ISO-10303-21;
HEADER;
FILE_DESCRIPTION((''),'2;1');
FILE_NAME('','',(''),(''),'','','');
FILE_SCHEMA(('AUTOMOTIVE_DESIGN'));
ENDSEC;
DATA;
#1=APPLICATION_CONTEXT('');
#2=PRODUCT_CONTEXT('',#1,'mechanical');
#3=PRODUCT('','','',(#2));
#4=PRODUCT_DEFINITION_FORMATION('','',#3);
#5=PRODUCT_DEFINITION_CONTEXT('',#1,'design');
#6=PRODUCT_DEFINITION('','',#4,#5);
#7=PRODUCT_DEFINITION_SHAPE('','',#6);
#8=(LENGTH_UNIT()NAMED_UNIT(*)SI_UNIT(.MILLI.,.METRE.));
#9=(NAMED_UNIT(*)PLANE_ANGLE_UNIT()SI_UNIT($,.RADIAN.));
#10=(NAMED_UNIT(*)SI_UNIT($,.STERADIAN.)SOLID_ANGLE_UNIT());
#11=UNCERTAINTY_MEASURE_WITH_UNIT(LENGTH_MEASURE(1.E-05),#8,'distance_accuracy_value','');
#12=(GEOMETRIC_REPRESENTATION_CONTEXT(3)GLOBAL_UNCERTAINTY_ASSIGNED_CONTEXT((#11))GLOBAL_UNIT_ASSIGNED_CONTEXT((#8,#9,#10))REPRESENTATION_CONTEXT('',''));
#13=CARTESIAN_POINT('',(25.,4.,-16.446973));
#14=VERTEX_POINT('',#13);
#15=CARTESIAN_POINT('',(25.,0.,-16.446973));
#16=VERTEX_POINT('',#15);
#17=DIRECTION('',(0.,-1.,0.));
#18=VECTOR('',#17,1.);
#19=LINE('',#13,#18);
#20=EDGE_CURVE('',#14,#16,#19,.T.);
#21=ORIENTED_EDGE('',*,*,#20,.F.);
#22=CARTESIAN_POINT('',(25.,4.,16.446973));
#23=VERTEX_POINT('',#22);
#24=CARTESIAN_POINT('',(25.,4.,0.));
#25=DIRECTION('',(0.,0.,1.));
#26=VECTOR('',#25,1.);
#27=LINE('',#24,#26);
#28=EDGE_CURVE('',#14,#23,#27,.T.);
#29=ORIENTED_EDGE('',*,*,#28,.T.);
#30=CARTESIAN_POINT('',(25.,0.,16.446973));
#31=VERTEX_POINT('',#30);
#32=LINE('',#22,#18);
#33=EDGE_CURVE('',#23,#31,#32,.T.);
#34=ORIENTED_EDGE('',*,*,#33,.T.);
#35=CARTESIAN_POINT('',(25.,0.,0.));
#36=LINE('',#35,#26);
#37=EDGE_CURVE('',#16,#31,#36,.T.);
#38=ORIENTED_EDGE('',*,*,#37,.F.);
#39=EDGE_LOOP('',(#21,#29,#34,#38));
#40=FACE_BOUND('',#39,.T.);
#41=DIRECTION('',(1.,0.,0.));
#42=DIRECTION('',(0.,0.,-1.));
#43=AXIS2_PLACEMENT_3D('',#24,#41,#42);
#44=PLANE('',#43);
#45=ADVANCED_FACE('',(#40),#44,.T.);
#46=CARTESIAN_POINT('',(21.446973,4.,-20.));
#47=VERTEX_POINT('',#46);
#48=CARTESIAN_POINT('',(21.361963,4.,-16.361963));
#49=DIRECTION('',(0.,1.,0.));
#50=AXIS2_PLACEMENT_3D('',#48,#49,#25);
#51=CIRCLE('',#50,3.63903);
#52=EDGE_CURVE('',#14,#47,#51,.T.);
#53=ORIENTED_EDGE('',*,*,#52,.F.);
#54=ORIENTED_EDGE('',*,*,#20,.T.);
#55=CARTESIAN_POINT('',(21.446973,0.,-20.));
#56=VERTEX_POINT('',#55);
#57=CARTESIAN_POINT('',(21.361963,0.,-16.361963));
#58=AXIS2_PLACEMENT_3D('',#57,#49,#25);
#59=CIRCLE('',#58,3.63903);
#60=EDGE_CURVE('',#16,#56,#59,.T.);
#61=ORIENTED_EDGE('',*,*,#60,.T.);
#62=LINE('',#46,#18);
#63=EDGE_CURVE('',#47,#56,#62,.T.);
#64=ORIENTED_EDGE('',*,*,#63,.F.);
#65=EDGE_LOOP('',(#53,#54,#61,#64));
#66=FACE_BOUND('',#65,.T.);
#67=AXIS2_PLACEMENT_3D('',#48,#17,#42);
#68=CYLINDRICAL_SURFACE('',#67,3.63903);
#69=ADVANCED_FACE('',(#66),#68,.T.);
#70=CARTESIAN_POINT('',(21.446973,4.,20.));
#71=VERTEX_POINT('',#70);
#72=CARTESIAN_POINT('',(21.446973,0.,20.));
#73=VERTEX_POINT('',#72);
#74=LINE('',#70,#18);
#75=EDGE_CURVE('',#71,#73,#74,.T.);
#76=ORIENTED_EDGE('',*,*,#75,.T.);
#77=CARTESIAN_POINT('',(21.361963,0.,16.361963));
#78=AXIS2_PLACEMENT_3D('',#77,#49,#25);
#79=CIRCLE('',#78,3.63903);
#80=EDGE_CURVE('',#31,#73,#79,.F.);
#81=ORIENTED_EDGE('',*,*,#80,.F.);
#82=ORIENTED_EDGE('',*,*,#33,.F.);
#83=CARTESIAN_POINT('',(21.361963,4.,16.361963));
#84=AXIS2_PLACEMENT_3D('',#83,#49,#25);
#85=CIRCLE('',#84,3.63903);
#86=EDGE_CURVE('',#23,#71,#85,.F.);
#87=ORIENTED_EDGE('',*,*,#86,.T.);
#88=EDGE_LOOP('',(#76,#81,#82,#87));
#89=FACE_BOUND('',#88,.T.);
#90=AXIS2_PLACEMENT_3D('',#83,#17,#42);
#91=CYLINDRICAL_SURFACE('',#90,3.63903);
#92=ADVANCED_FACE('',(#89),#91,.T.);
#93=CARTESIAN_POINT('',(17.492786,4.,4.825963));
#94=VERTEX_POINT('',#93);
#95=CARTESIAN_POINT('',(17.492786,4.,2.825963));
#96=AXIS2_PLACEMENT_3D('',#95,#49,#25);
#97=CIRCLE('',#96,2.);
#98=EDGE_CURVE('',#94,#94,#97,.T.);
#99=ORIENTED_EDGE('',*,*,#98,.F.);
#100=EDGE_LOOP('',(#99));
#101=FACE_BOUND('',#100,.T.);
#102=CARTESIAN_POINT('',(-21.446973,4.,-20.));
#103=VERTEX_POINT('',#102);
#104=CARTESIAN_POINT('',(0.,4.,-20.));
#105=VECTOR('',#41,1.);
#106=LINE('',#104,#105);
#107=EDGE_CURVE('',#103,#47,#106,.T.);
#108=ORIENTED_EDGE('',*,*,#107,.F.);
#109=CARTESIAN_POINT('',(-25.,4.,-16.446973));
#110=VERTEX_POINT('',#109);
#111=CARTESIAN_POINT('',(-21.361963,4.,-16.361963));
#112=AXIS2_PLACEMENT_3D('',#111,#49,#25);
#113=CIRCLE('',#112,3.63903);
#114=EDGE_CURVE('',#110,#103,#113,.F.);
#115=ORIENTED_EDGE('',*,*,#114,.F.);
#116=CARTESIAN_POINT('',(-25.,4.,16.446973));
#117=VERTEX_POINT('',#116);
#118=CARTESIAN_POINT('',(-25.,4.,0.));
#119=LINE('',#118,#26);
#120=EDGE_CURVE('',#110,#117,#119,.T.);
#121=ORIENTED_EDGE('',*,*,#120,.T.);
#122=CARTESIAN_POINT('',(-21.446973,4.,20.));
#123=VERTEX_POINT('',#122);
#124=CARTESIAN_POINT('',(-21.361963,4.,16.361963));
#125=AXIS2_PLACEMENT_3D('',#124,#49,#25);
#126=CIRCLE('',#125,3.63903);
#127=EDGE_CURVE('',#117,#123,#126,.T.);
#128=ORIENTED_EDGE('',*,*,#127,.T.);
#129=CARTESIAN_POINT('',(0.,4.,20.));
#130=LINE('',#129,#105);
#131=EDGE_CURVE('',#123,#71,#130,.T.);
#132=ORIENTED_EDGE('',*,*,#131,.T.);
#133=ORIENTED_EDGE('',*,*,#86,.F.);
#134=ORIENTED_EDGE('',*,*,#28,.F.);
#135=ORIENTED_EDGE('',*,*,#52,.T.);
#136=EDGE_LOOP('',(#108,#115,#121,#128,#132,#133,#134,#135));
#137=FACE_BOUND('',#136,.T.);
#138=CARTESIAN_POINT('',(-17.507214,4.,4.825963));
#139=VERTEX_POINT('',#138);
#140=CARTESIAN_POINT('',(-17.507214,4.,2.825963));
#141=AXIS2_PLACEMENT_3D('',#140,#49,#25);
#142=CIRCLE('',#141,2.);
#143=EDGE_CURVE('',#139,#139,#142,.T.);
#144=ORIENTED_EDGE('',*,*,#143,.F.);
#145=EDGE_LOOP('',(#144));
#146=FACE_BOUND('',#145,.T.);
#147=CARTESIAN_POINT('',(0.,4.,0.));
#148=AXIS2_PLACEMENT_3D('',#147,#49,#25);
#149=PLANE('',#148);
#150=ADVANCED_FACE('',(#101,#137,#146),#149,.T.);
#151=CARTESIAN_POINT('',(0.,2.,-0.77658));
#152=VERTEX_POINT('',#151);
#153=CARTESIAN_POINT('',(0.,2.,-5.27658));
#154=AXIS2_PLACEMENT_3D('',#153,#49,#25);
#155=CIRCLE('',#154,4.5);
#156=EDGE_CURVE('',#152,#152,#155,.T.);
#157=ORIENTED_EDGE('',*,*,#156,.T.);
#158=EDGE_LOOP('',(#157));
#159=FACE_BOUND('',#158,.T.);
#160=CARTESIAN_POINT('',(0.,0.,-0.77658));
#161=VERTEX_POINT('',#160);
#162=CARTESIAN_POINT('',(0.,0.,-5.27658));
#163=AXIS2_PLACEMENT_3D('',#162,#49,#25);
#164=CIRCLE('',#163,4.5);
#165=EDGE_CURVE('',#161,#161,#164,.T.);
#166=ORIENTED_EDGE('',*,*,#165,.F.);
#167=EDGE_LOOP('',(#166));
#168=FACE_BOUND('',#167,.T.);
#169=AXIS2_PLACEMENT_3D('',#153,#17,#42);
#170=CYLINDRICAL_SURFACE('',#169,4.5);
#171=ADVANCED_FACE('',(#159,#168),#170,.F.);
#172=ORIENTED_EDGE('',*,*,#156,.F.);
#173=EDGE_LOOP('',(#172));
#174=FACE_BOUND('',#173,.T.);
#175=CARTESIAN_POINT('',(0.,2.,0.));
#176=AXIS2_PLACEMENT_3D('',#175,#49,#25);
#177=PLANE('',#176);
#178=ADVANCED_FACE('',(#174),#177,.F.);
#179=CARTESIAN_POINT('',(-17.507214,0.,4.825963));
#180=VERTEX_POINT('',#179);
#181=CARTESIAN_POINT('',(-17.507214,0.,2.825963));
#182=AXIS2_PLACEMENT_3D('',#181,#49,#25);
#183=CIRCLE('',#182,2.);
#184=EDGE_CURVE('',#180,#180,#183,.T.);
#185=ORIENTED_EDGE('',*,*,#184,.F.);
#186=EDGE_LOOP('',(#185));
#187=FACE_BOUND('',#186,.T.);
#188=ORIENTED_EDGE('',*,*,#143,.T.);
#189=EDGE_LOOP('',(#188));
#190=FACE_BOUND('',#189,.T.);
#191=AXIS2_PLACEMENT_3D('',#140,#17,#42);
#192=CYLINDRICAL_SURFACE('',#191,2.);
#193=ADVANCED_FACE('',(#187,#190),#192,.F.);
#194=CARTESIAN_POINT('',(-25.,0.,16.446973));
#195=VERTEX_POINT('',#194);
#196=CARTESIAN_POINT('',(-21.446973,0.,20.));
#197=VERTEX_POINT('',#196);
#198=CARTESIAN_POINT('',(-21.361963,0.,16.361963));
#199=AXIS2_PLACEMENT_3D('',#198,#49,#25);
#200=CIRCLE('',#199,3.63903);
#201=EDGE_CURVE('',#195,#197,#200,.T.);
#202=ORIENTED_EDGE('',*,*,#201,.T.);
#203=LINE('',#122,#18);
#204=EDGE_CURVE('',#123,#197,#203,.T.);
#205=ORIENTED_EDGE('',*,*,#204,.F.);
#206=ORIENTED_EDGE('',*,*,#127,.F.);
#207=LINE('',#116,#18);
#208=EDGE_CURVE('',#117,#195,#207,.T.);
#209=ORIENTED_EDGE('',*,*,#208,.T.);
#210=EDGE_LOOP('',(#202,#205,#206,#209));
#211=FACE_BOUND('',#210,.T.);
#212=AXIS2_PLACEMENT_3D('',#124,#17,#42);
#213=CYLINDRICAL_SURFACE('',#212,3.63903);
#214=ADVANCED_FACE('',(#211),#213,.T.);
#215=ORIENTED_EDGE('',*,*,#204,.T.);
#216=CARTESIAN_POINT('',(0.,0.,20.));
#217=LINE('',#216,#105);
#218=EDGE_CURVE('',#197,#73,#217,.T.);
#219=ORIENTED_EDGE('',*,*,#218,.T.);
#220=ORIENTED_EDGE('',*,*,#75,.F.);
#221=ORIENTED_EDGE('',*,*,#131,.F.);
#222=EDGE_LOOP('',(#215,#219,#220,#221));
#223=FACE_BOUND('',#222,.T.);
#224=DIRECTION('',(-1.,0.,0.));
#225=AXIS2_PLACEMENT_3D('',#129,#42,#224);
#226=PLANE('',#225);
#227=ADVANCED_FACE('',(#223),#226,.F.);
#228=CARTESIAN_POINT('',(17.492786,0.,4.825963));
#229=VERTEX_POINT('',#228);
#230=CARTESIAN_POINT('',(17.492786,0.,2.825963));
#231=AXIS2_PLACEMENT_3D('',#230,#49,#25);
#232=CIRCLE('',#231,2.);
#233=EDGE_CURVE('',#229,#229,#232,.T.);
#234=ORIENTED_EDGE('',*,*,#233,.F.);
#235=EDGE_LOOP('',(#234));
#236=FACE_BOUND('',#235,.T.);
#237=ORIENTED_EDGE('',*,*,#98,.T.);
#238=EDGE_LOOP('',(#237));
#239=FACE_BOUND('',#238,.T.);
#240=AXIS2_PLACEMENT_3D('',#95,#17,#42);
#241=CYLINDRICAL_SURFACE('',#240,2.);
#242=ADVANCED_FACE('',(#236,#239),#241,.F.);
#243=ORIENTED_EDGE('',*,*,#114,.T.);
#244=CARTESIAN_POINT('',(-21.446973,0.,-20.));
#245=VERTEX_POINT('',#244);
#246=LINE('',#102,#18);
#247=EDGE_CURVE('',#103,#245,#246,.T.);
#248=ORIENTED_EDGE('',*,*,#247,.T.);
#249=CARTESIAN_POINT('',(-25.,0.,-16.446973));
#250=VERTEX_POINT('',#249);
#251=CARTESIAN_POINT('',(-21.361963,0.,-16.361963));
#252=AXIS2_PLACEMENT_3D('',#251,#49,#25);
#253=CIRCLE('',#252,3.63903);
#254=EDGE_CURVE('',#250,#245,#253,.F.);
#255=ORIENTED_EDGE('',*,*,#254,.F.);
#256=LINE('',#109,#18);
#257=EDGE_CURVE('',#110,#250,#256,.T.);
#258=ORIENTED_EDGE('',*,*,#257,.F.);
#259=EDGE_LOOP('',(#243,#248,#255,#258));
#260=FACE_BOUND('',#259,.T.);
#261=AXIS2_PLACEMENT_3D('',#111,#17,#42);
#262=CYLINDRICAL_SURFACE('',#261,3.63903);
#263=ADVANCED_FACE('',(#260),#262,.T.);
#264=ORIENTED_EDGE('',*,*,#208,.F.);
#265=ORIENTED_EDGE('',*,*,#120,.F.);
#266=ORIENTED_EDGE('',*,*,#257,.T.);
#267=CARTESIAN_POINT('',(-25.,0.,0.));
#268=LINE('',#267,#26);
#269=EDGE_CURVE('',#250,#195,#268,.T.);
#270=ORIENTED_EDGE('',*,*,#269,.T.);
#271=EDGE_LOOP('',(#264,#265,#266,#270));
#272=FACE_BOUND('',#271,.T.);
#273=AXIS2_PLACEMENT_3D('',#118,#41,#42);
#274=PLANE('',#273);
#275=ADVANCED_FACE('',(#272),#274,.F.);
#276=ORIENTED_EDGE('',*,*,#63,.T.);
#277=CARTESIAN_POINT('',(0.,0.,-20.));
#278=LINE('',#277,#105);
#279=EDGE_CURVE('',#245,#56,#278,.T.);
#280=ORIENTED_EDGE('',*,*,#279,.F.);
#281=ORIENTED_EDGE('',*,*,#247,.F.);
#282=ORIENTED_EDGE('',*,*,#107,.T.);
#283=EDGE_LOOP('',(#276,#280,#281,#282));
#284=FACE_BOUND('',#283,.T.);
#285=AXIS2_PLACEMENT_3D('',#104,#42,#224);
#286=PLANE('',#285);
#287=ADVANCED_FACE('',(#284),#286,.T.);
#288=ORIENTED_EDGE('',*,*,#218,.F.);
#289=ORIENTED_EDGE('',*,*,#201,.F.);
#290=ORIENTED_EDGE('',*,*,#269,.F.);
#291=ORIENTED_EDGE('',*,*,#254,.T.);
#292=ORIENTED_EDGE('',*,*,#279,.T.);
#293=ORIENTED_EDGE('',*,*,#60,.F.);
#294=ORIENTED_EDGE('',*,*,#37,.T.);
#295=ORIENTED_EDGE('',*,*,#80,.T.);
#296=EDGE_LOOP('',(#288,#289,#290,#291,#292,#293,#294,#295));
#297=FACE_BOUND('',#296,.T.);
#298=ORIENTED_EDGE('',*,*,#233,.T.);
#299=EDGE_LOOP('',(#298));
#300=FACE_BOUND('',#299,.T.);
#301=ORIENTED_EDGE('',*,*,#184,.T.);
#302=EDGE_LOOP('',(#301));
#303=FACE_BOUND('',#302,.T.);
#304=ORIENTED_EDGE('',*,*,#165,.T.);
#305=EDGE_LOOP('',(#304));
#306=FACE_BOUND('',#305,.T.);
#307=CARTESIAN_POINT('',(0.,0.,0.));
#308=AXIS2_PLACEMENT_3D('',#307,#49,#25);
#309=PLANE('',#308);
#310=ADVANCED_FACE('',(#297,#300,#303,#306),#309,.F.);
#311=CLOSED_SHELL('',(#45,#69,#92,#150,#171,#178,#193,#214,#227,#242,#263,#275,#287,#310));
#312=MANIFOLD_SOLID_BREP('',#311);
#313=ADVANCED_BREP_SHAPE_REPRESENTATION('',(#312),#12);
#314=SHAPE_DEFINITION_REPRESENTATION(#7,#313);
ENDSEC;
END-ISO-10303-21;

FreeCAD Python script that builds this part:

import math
import FreeCAD as App
import Part
import Sketcher
from FreeCAD import Vector

doc = App.newDocument("Part")
body = doc.addObject("PartDesign::Body", "Body")

# Sketch on XZ plane
sketch1 = body.newObject("Sketcher::SketchObject", "Sketch")
sketch1.AttachmentSupport = (doc.getObject("XZ_Plane"), [""])
sketch1.MapMode = "FlatFace"
sketch1.addGeometry(Part.LineSegment(Vector(21.446973, -20, 0), Vector(-21.446973, -20, 0)), False)
sketch1.addGeometry(Part.ArcOfCircle(Part.Circle(Vector(-21.361963, -16.361963, 0), Vector(0, 0, 1), 3.63903), math.radians(-178.661405), math.radians(-91.338595)), False)
sketch1.addGeometry(Part.LineSegment(Vector(-25, -16.446973, 0), Vector(-25, 16.446973, 0)), False)
sketch1.addGeometry(Part.ArcOfCircle(Part.Circle(Vector(-21.361963, 16.361963, 0), Vector(0, 0, 1), 3.63903), math.radians(91.338595), math.radians(178.661405)), False)
sketch1.addGeometry(Part.LineSegment(Vector(-21.446973, 20, 0), Vector(21.446973, 20, 0)), False)
sketch1.addGeometry(Part.ArcOfCircle(Part.Circle(Vector(21.361963, 16.361963, 0), Vector(0, 0, 1), 3.63903), math.radians(1.338595), math.radians(88.661405)), False)
sketch1.addGeometry(Part.LineSegment(Vector(25, 16.446973, 0), Vector(25, -16.446973, 0)), False)
sketch1.addGeometry(Part.ArcOfCircle(Part.Circle(Vector(21.361963, -16.361963, 0), Vector(0, 0, 1), 3.63903), math.radians(-88.661405), math.radians(-1.338595)), False)
sketch1.addGeometry(Part.Circle(Vector(-17.507214, 2.825963, 0), Vector(0, 0, 1), 2), False)
sketch1.addGeometry(Part.Circle(Vector(17.492786, 2.825963, 0), Vector(0, 0, 1), 2), False)
sketch1.addConstraint(Sketcher.Constraint("Coincident", 0, 2, 1, 2))
sketch1.addConstraint(Sketcher.Constraint("Coincident", 1, 1, 2, 1))
sketch1.addConstraint(Sketcher.Constraint("Coincident", 2, 2, 3, 2))
sketch1.addConstraint(Sketcher.Constraint("Coincident", 3, 1, 4, 1))
sketch1.addConstraint(Sketcher.Constraint("Coincident", 4, 2, 5, 2))
sketch1.addConstraint(Sketcher.Constraint("Coincident", 5, 1, 6, 1))
sketch1.addConstraint(Sketcher.Constraint("Coincident", 6, 2, 7, 2))
sketch1.addConstraint(Sketcher.Constraint("Coincident", 7, 1, 0, 1))
sketch1.addConstraint(Sketcher.Constraint("Horizontal", 0))
sketch1.addConstraint(Sketcher.Constraint("Vertical", 2))
sketch1.addConstraint(Sketcher.Constraint("Horizontal", 4))
sketch1.addConstraint(Sketcher.Constraint("Vertical", 6))
sketch1.addConstraint(Sketcher.Constraint("Equal", 1, 3))
sketch1.addConstraint(Sketcher.Constraint("Equal", 3, 5))
sketch1.addConstraint(Sketcher.Constraint("Equal", 5, 7))
sketch1.addConstraint(Sketcher.Constraint("Equal", 8, 9))
sketch1.addConstraint(Sketcher.Constraint("Symmetric", 1, 3, 5, 3, -1, 1))
sketch1.addConstraint(Sketcher.Constraint("Symmetric", 3, 3, 7, 3, -1, 1))
sketch1.addConstraint(Sketcher.Constraint("Symmetric", 3, 3, 5, 3, -2))
sketch1.addConstraint(Sketcher.Constraint("Horizontal", 8, 3, 9, 3))
sketch1.addConstraint(Sketcher.Constraint("Horizontal", 2, 2, 5, 1))
sketch1.addConstraint(Sketcher.Constraint("Vertical", 0, 2, 3, 1))
sketch1.addConstraint(Sketcher.Constraint("Diameter", 8, 4.0))
sketch1.addConstraint(Sketcher.Constraint("DistanceY", 0, 2, -1, 1, 20.0))
sketch1.addConstraint(Sketcher.Constraint("DistanceX", 1, 1, -1, 1, 25.0))
sketch1.addConstraint(Sketcher.Constraint("DistanceX", 8, 3, 9, 3, 35.0))
sketch1.addConstraint(Sketcher.Constraint("Radius", 1, 3.63903))
sketch1.addConstraint(Sketcher.Constraint("DistanceY", 8, 3, 3, 3, 13.535999))
sketch1.addConstraint(Sketcher.Constraint("DistanceX", 0, 2, 0, 1, 42.893946))
sketch1.addConstraint(Sketcher.Constraint("DistanceY", 2, 1, 2, 2, 32.893946))
sketch1.addConstraint(Sketcher.Constraint("DistanceX", 3, 3, 8, 3, 3.854748))
pad1 = body.newObject("PartDesign::Pad", "Pad")
pad1.Profile = sketch1
pad1.Length = 4
pad1.Reversed = True

# Sketch on XZ plane
sketch2 = body.newObject("Sketcher::SketchObject", "Sketch001")
sketch2.AttachmentSupport = (doc.getObject("XZ_Plane"), [""])
sketch2.MapMode = "FlatFace"
sketch2.addGeometry(Part.Circle(Vector(0, -5.3, 0), Vector(0, 0, 1), 4.5), False)
sketch2.addConstraint(Sketcher.Constraint("PointOnObject", 0, 3, -2))
sketch2.addConstraint(Sketcher.Constraint("Diameter", 0, 9.0))
sketch2.addConstraint(Sketcher.Constraint("DistanceY", 0, 3, -1, 1, 5.27658))
pocket1 = body.newObject("PartDesign::Pocket", "Pocket")
pocket1.Profile = sketch2
pocket1.Length = 2

doc.recompute()
